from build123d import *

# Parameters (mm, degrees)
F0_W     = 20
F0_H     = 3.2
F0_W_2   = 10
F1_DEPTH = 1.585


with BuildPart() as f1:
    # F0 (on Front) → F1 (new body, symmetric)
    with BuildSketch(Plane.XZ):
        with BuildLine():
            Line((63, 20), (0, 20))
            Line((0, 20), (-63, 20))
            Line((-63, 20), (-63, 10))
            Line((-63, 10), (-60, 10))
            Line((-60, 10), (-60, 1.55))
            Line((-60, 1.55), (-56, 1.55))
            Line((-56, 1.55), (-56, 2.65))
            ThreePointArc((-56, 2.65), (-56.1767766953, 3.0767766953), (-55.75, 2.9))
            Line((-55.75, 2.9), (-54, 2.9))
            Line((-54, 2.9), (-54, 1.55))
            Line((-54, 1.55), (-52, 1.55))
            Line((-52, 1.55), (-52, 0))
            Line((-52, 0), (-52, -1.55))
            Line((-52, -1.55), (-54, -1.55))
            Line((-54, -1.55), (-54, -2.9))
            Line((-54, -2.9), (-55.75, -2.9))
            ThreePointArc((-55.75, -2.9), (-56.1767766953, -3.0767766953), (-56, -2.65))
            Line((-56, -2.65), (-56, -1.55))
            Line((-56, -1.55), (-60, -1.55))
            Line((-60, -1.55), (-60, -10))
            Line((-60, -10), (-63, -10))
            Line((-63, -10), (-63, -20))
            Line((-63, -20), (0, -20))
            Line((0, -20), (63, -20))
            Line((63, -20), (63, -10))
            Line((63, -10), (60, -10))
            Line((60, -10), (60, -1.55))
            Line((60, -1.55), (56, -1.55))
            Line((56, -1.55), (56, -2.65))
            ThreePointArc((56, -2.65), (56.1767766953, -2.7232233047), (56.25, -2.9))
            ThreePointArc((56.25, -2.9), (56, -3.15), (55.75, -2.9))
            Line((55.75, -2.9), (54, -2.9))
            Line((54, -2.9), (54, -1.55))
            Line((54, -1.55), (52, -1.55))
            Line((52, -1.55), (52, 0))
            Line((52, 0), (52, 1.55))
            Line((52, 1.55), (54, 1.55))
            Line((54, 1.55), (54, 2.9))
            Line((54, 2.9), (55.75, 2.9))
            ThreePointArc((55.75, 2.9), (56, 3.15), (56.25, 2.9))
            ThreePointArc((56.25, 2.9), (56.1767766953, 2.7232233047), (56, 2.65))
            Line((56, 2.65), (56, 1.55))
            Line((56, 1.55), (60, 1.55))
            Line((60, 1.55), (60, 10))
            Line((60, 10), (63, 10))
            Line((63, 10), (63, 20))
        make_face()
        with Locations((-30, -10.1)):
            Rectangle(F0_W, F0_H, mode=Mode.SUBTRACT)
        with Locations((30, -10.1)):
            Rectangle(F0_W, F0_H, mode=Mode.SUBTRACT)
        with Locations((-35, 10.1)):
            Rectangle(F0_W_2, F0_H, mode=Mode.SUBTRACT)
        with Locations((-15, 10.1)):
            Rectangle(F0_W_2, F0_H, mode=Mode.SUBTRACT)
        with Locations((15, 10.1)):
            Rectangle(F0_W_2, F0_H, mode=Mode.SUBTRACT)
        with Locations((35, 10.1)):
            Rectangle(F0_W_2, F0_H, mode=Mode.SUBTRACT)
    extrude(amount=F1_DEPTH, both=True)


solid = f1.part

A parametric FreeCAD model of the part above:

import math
import FreeCAD as App
import Part
import Sketcher
from FreeCAD import Vector

doc = App.newDocument("Part")
body = doc.addObject("PartDesign::Body", "Body")

# Sketch on XZ plane
sketch1 = body.newObject("Sketcher::SketchObject", "Sketch")
sketch1.AttachmentSupport = (doc.getObject("XZ_Plane"), [""])
sketch1.MapMode = "FlatFace"
sketch1.addGeometry(Part.LineSegment(Vector(63, 20, 0), Vector(-63, 20, 0)), False)
sketch1.addGeometry(Part.LineSegment(Vector(-63, 20, 0), Vector(-63, 10, 0)), False)
sketch1.addGeometry(Part.LineSegment(Vector(-63, 10, 0), Vector(-60, 10, 0)), False)
sketch1.addGeometry(Part.LineSegment(Vector(-60, 10, 0), Vector(-60, 1.55, 0)), False)
sketch1.addGeometry(Part.LineSegment(Vector(-60, 1.55, 0), Vector(-56, 1.55, 0)), False)
sketch1.addGeometry(Part.LineSegment(Vector(-56, 1.55, 0), Vector(-56, 2.65, 0)), False)
sketch1.addGeometry(Part.ArcOfCircle(Part.Circle(Vector(-56, 2.9, 0), Vector(0, 0, 1), 0.25), math.radians(0), math.radians(270)), False)
sketch1.addGeometry(Part.LineSegment(Vector(-55.75, 2.9, 0), Vector(-54, 2.9, 0)), False)
sketch1.addGeometry(Part.LineSegment(Vector(-54, 2.9, 0), Vector(-54, 1.55, 0)), False)
sketch1.addGeometry(Part.LineSegment(Vector(-54, 1.55, 0), Vector(-52, 1.55, 0)), False)
sketch1.addGeometry(Part.LineSegment(Vector(-52, 1.55, 0), Vector(-52, -1.55, 0)), False)
sketch1.addGeometry(Part.LineSegment(Vector(-52, -1.55, 0), Vector(-54, -1.55, 0)), False)
sketch1.addGeometry(Part.LineSegment(Vector(-54, -1.55, 0), Vector(-54, -2.9, 0)), False)
sketch1.addGeometry(Part.LineSegment(Vector(-54, -2.9, 0), Vector(-55.75, -2.9, 0)), False)
sketch1.addGeometry(Part.ArcOfCircle(Part.Circle(Vector(-56, -2.9, 0), Vector(0, 0, 1), 0.25), math.radians(90), math.radians(360)), False)
sketch1.addGeometry(Part.LineSegment(Vector(-56, -2.65, 0), Vector(-56, -1.55, 0)), False)
sketch1.addGeometry(Part.LineSegment(Vector(-56, -1.55, 0), Vector(-60, -1.55, 0)), False)
sketch1.addGeometry(Part.LineSegment(Vector(-60, -1.55, 0), Vector(-60, -10, 0)), False)
sketch1.addGeometry(Part.LineSegment(Vector(-60, -10, 0), Vector(-63, -10, 0)), False)
sketch1.addGeometry(Part.LineSegment(Vector(-63, -10, 0), Vector(-63, -20, 0)), False)
sketch1.addGeometry(Part.LineSegment(Vector(-63, -20, 0), Vector(63, -20, 0)), False)
sketch1.addGeometry(Part.LineSegment(Vector(63, -20, 0), Vector(63, -10, 0)), False)
sketch1.addGeometry(Part.LineSegment(Vector(63, -10, 0), Vector(60, -10, 0)), False)
sketch1.addGeometry(Part.LineSegment(Vector(60, -10, 0), Vector(60, -1.55, 0)), False)
sketch1.addGeometry(Part.LineSegment(Vector(60, -1.55, 0), Vector(56, -1.55, 0)), False)
sketch1.addGeometry(Part.LineSegment(Vector(56, -1.55, 0), Vector(56, -2.65, 0)), False)
sketch1.addGeometry(Part.ArcOfCircle(Part.Circle(Vector(56, -2.9, 0), Vector(0, 0, 1), 0.25), math.radians(0), math.radians(90)), False)
sketch1.addGeometry(Part.ArcOfCircle(Part.Circle(Vector(56, -2.9, 0), Vector(0, 0, 1), 0.25), math.radians(180), math.radians(360)), False)
sketch1.addGeometry(Part.LineSegment(Vector(55.75, -2.9, 0), Vector(54, -2.9, 0)), False)
sketch1.addGeometry(Part.LineSegment(Vector(54, -2.9, 0), Vector(54, -1.55, 0)), False)
sketch1.addGeometry(Part.LineSegment(Vector(54, -1.55, 0), Vector(52, -1.55, 0)), False)
sketch1.addGeometry(Part.LineSegment(Vector(52, -1.55, 0), Vector(52, 1.55, 0)), False)
sketch1.addGeometry(Part.LineSegment(Vector(52, 1.55, 0), Vector(54, 1.55, 0)), False)
sketch1.addGeometry(Part.LineSegment(Vector(54, 1.55, 0), Vector(54, 2.9, 0)), False)
sketch1.addGeometry(Part.LineSegment(Vector(54, 2.9, 0), Vector(55.75, 2.9, 0)), False)
sketch1.addGeometry(Part.ArcOfCircle(Part.Circle(Vector(56, 2.9, 0), Vector(0, 0, 1), 0.25), math.radians(0), math.radians(180)), False)
sketch1.addGeometry(Part.ArcOfCircle(Part.Circle(Vector(56, 2.9, 0), Vector(0, 0, 1), 0.25), math.radians(-90), math.radians(0)), False)
sketch1.addGeometry(Part.LineSegment(Vector(56, 2.65, 0), Vector(56, 1.55, 0)), False)
sketch1.addGeometry(Part.LineSegment(Vector(56, 1.55, 0), Vector(60, 1.55, 0)), False)
sketch1.addGeometry(Part.LineSegment(Vector(60, 1.55, 0), Vector(60, 10, 0)), False)
sketch1.addGeometry(Part.LineSegment(Vector(60, 10, 0), Vector(63, 10, 0)), False)
sketch1.addGeometry(Part.LineSegment(Vector(63, 10, 0), Vector(63, 20, 0)), False)
sketch1.addGeometry(Part.LineSegment(Vector(-20, -11.7, 0), Vector(-40, -11.7, 0)), False)
sketch1.addGeometry(Part.LineSegment(Vector(-40, -11.7, 0), Vector(-40, -8.5, 0)), False)
sketch1.addGeometry(Part.LineSegment(Vector(-40, -8.5, 0), Vector(-20, -8.5, 0)), False)
sketch1.addGeometry(Part.LineSegment(Vector(-20, -8.5, 0), Vector(-20, -11.7, 0)), False)
sketch1.addGeometry(Part.LineSegment(Vector(40, -11.7, 0), Vector(20, -11.7, 0)), False)
sketch1.addGeometry(Part.LineSegment(Vector(20, -11.7, 0), Vector(20, -8.5, 0)), False)
sketch1.addGeometry(Part.LineSegment(Vector(20, -8.5, 0), Vector(40, -8.5, 0)), False)
sketch1.addGeometry(Part.LineSegment(Vector(40, -8.5, 0), Vector(40, -11.7, 0)), False)
sketch1.addGeometry(Part.LineSegment(Vector(-30, 8.5, 0), Vector(-40, 8.5, 0)), False)
sketch1.addGeometry(Part.LineSegment(Vector(-40, 8.5, 0), Vector(-40, 11.7, 0)), False)
sketch1.addGeometry(Part.LineSegment(Vector(-40, 11.7, 0), Vector(-30, 11.7, 0)), False)
sketch1.addGeometry(Part.LineSegment(Vector(-30, 11.7, 0), Vector(-30, 8.5, 0)), False)
sketch1.addGeometry(Part.LineSegment(Vector(-10, 8.5, 0), Vector(-20, 8.5, 0)), False)
sketch1.addGeometry(Part.LineSegment(Vector(-20, 8.5, 0), Vector(-20, 11.7, 0)), False)
sketch1.addGeometry(Part.LineSegment(Vector(-20, 11.7, 0), Vector(-10, 11.7, 0)), False)
sketch1.addGeometry(Part.LineSegment(Vector(-10, 11.7, 0), Vector(-10, 8.5, 0)), False)
sketch1.addGeometry(Part.LineSegment(Vector(20, 8.5, 0), Vector(10, 8.5, 0)), False)
sketch1.addGeometry(Part.LineSegment(Vector(10, 8.5, 0), Vector(10, 11.7, 0)), False)
sketch1.addGeometry(Part.LineSegment(Vector(10, 11.7, 0), Vector(20, 11.7, 0)), False)
sketch1.addGeometry(Part.LineSegment(Vector(20, 11.7, 0), Vector(20, 8.5, 0)), False)
sketch1.addGeometry(Part.LineSegment(Vector(40, 8.5, 0), Vector(30, 8.5, 0)), False)
sketch1.addGeometry(Part.LineSegment(Vector(30, 8.5, 0), Vector(30, 11.7, 0)), False)
sketch1.addGeometry(Part.LineSegment(Vector(30, 11.7, 0), Vector(40, 11.7, 0)), False)
sketch1.addGeometry(Part.LineSegment(Vector(40, 11.7, 0), Vector(40, 8.5, 0)), False)
sketch1.addConstraint(Sketcher.Constraint("Coincident", 0, 2, 1, 1))
sketch1.addConstraint(Sketcher.Constraint("Coincident", 1, 2, 2, 1))
sketch1.addConstraint(Sketcher.Constraint("Coincident", 2, 2, 3, 1))
sketch1.addConstraint(Sketcher.Constraint("Coincident", 3, 2, 4, 1))
sketch1.addConstraint(Sketcher.Constraint("Coincident", 4, 2, 5, 1))
sketch1.addConstraint(Sketcher.Constraint("Coincident", 5, 2, 6, 2))
sketch1.addConstraint(Sketcher.Constraint("Coincident", 6, 1, 7, 1))
sketch1.addConstraint(Sketcher.Constraint("Coincident", 7, 2, 8, 1))
sketch1.addConstraint(Sketcher.Constraint("Coincident", 8, 2, 9, 1))
sketch1.addConstraint(Sketcher.Constraint("Coincident", 9, 2, 10, 1))
sketch1.addConstraint(Sketcher.Constraint("Coincident", 10, 2, 11, 1))
sketch1.addConstraint(Sketcher.Constraint("Coincident", 11, 2, 12, 1))
sketch1.addConstraint(Sketcher.Constraint("Coincident", 12, 2, 13, 1))
sketch1.addConstraint(Sketcher.Constraint("Coincident", 13, 2, 14, 2))
sketch1.addConstraint(Sketcher.Constraint("Coincident", 14, 1, 15, 1))
sketch1.addConstraint(Sketcher.Constraint("Coincident", 15, 2, 16, 1))
sketch1.addConstraint(Sketcher.Constraint("Coincident", 16, 2, 17, 1))
sketch1.addConstraint(Sketcher.Constraint("Coincident", 17, 2, 18, 1))
sketch1.addConstraint(Sketcher.Constraint("Coincident", 18, 2, 19, 1))
sketch1.addConstraint(Sketcher.Constraint("Coincident", 19, 2, 20, 1))
sketch1.addConstraint(Sketcher.Constraint("Coincident", 20, 2, 21, 1))
sketch1.addConstraint(Sketcher.Constraint("Coincident", 21, 2, 22, 1))
sketch1.addConstraint(Sketcher.Constraint("Coincident", 22, 2, 23, 1))
sketch1.addConstraint(Sketcher.Constraint("Coincident", 23, 2, 24, 1))
sketch1.addConstraint(Sketcher.Constraint("Coincident", 24, 2, 25, 1))
sketch1.addConstraint(Sketcher.Constraint("Coincident", 25, 2, 26, 2))
sketch1.addConstraint(Sketcher.Constraint("Tangent", 26, 1, 27, 2))
sketch1.addConstraint(Sketcher.Constraint("Coincident", 27, 1, 28, 1))
sketch1.addConstraint(Sketcher.Constraint("Coincident", 28, 2, 29, 1))
sketch1.addConstraint(Sketcher.Constraint("Coincident", 29, 2, 30, 1))
sketch1.addConstraint(Sketcher.Constraint("Coincident", 30, 2, 31, 1))
sketch1.addConstraint(Sketcher.Constraint("Coincident", 31, 2, 32, 1))
sketch1.addConstraint(Sketcher.Constraint("Coincident", 32, 2, 33, 1))
sketch1.addConstraint(Sketcher.Constraint("Coincident", 33, 2, 34, 1))
sketch1.addConstraint(Sketcher.Constraint("Coincident", 34, 2, 35, 2))
sketch1.addConstraint(Sketcher.Constraint("Tangent", 35, 1, 36, 2))
sketch1.addConstraint(Sketcher.Constraint("Coincident", 36, 1, 37, 1))
sketch1.addConstraint(Sketcher.Constraint("Coincident", 37, 2, 38, 1))
sketch1.addConstraint(Sketcher.Constraint("Coincident", 38, 2, 39, 1))
sketch1.addConstraint(Sketcher.Constraint("Coincident", 39, 2, 40, 1))
sketch1.addConstraint(Sketcher.Constraint("Coincident", 40, 2, 41, 1))
sketch1.addConstraint(Sketcher.Constraint("Coincident", 41, 2, 0, 1))
sketch1.addConstraint(Sketcher.Constraint("Coincident", 42, 2, 43, 1))
sketch1.addConstraint(Sketcher.Constraint("Coincident", 43, 2, 44, 1))
sketch1.addConstraint(Sketcher.Constraint("Coincident", 44, 2, 45, 1))
sketch1.addConstraint(Sketcher.Constraint("Coincident", 45, 2, 42, 1))
sketch1.addConstraint(Sketcher.Constraint("Coincident", 46, 2, 47, 1))
sketch1.addConstraint(Sketcher.Constraint("Coincident", 47, 2, 48, 1))
sketch1.addConstraint(Sketcher.Constraint("Coincident", 48, 2, 49, 1))
sketch1.addConstraint(Sketcher.Constraint("Coincident", 49, 2, 46, 1))
sketch1.addConstraint(Sketcher.Constraint("Coincident", 50, 2, 51, 1))
sketch1.addConstraint(Sketcher.Constraint("Coincident", 51, 2, 52, 1))
sketch1.addConstraint(Sketcher.Constraint("Coincident", 52, 2, 53, 1))
sketch1.addConstraint(Sketcher.Constraint("Coincident", 53, 2, 50, 1))
sketch1.addConstraint(Sketcher.Constraint("Coincident", 54, 2, 55, 1))
sketch1.addConstraint(Sketcher.Constraint("Coincident", 55, 2, 56, 1))
sketch1.addConstraint(Sketcher.Constraint("Coincident", 56, 2, 57, 1))
sketch1.addConstraint(Sketcher.Constraint("Coincident", 57, 2, 54, 1))
sketch1.addConstraint(Sketcher.Constraint("Coincident", 58, 2, 59, 1))
sketch1.addConstraint(Sketcher.Constraint("Coincident", 59, 2, 60, 1))
sketch1.addConstraint(Sketcher.Constraint("Coincident", 60, 2, 61, 1))
sketch1.addConstraint(Sketcher.Constraint("Coincident", 61, 2, 58, 1))
sketch1.addConstraint(Sketcher.Constraint("Coincident", 62, 2, 63, 1))
sketch1.addConstraint(Sketcher.Constraint("Coincident", 63, 2, 64, 1))
sketch1.addConstraint(Sketcher.Constraint("Coincident", 64, 2, 65, 1))
sketch1.addConstraint(Sketcher.Constraint("Coincident", 65, 2, 62, 1))
sketch1.addConstraint(Sketcher.Constraint("Horizontal", 0))
sketch1.addConstraint(Sketcher.Constraint("Vertical", 1))
sketch1.addConstraint(Sketcher.Constraint("Horizontal", 2))
sketch1.addConstraint(Sketcher.Constraint("Vertical", 3))
sketch1.addConstraint(Sketcher.Constraint("Horizontal", 4))
sketch1.addConstraint(Sketcher.Constraint("Vertical", 5))
sketch1.addConstraint(Sketcher.Constraint("Horizontal", 7))
sketch1.addConstraint(Sketcher.Constraint("Vertical", 8))
sketch1.addConstraint(Sketcher.Constraint("Horizontal", 9))
sketch1.addConstraint(Sketcher.Constraint("Vertical", 10))
sketch1.addConstraint(Sketcher.Constraint("Horizontal", 11))
sketch1.addConstraint(Sketcher.Constraint("Vertical", 12))
sketch1.addConstraint(Sketcher.Constraint("Horizontal", 13))
sketch1.addConstraint(Sketcher.Constraint("Vertical", 15))
sketch1.addConstraint(Sketcher.Constraint("Horizontal", 16))
sketch1.addConstraint(Sketcher.Constraint("Vertical", 17))
sketch1.addConstraint(Sketcher.Constraint("Horizontal", 18))
sketch1.addConstraint(Sketcher.Constraint("Vertical", 19))
sketch1.addConstraint(Sketcher.Constraint("Horizontal", 20))
sketch1.addConstraint(Sketcher.Constraint("Vertical", 21))
sketch1.addConstraint(Sketcher.Constraint("Horizontal", 22))
sketch1.addConstraint(Sketcher.Constraint("Vertical", 23))
sketch1.addConstraint(Sketcher.Constraint("Horizontal", 24))
sketch1.addConstraint(Sketcher.Constraint("Vertical", 25))
sketch1.addConstraint(Sketcher.Constraint("Horizontal", 28))
sketch1.addConstraint(Sketcher.Constraint("Vertical", 29))
sketch1.addConstraint(Sketcher.Constraint("Horizontal", 30))
sketch1.addConstraint(Sketcher.Constraint("Vertical", 31))
sketch1.addConstraint(Sketcher.Constraint("Horizontal", 32))
sketch1.addConstraint(Sketcher.Constraint("Vertical", 33))
sketch1.addConstraint(Sketcher.Constraint("Horizontal", 34))
sketch1.addConstraint(Sketcher.Constraint("Vertical", 37))
sketch1.addConstraint(Sketcher.Constraint("Horizontal", 38))
sketch1.addConstraint(Sketcher.Constraint("Vertical", 39))
sketch1.addConstraint(Sketcher.Constraint("Horizontal", 40))
sketch1.addConstraint(Sketcher.Constraint("Vertical", 41))
sketch1.addConstraint(Sketcher.Constraint("Horizontal", 42))
sketch1.addConstraint(Sketcher.Constraint("Vertical", 43))
sketch1.addConstraint(Sketcher.Constraint("Horizontal", 44))
sketch1.addConstraint(Sketcher.Constraint("Vertical", 45))
sketch1.addConstraint(Sketcher.Constraint("Horizontal", 46))
sketch1.addConstraint(Sketcher.Constraint("Vertical", 47))
sketch1.addConstraint(Sketcher.Constraint("Horizontal", 48))
sketch1.addConstraint(Sketcher.Constraint("Vertical", 49))
sketch1.addConstraint(Sketcher.Constraint("Horizontal", 50))
sketch1.addConstraint(Sketcher.Constraint("Vertical", 51))
sketch1.addConstraint(Sketcher.Constraint("Horizontal", 52))
sketch1.addConstraint(Sketcher.Constraint("Vertical", 53))
sketch1.addConstraint(Sketcher.Constraint("Horizontal", 54))
sketch1.addConstraint(Sketcher.Constraint("Vertical", 55))
sketch1.addConstraint(Sketcher.Constraint("Horizontal", 56))
sketch1.addConstraint(Sketcher.Constraint("Vertical", 57))
sketch1.addConstraint(Sketcher.Constraint("Horizontal", 58))
sketch1.addConstraint(Sketcher.Constraint("Vertical", 59))
sketch1.addConstraint(Sketcher.Constraint("Horizontal", 60))
sketch1.addConstraint(Sketcher.Constraint("Vertical", 61))
sketch1.addConstraint(Sketcher.Constraint("Horizontal", 62))
sketch1.addConstraint(Sketcher.Constraint("Vertical", 63))
sketch1.addConstraint(Sketcher.Constraint("Horizontal", 64))
sketch1.addConstraint(Sketcher.Constraint("Vertical", 65))
sketch1.addConstraint(Sketcher.Constraint("Equal", 6, 14))
sketch1.addConstraint(Sketcher.Constraint("Equal", 14, 26))
sketch1.addConstraint(Sketcher.Constraint("Equal", 26, 27))
sketch1.addConstraint(Sketcher.Constraint("Equal", 27, 35))
sketch1.addConstraint(Sketcher.Constraint("Equal", 35, 36))
sketch1.addConstraint(Sketcher.Constraint("Symmetric", 6, 3, 26, 3, -1, 1))
sketch1.addConstraint(Sketcher.Constraint("Symmetric", 14, 3, 35, 3, -1, 1))
sketch1.addConstraint(Sketcher.Constraint("Symmetric", 0, 2, 20, 2, -1, 1))
sketch1.addConstraint(Sketcher.Constraint("Symmetric", 2, 2, 22, 2, -1, 1))
sketch1.addConstraint(Sketcher.Constraint("Symmetric", 4, 2, 24, 2, -1, 1))
sketch1.addConstraint(Sketcher.Constraint("Symmetric", 7, 2, 28, 2, -1, 1))
sketch1.addConstraint(Sketcher.Constraint("Symmetric", 9, 2, 30, 2, -1, 1))
sketch1.addConstraint(Sketcher.Constraint("Symmetric", 11, 2, 32, 2, -1, 1))
sketch1.addConstraint(Sketcher.Constraint("Symmetric", 15, 2, 37, 2, -1, 1))
sketch1.addConstraint(Sketcher.Constraint("Symmetric", 17, 2, 39, 2, -1, 1))
sketch1.addConstraint(Sketcher.Constraint("Symmetric", 48, 2, 50, 2, -1, 1))
sketch1.addConstraint(Sketcher.Constraint("Symmetric", 47, 2, 54, 2, -1, 1))
sketch1.addConstraint(Sketcher.Constraint("Symmetric", 45, 2, 60, 2, -1, 1))
sketch1.addConstraint(Sketcher.Constraint("Symmetric", 42, 2, 64, 2, -1, 1))
sketch1.addConstraint(Sketcher.Constraint("Symmetric", 14, 3, 26, 3, -2))
sketch1.addConstraint(Sketcher.Constraint("Symmetric", 18, 2, 21, 2, -2))
sketch1.addConstraint(Sketcher.Constraint("Symmetric", 16, 2, 23, 2, -2))
sketch1.addConstraint(Sketcher.Constraint("Symmetric", 12, 2, 28, 2, -2))
sketch1.addConstraint(Sketcher.Constraint("Symmetric", 45, 2, 46, 2, -2))
sketch1.addConstraint(Sketcher.Constraint("Symmetric", 43, 2, 48, 2, -2))
sketch1.addConstraint(Sketcher.Constraint("Symmetric", 57, 2, 58, 2, -2))
sketch1.addConstraint(Sketcher.Constraint("Symmetric", 53, 2, 62, 2, -2))
sketch1.addConstraint(Sketcher.Constraint("Horizontal", 36, 3, 6, 1))
sketch1.addConstraint(Sketcher.Constraint("Horizontal", 4, 2, 8, 2))
sketch1.addConstraint(Sketcher.Constraint("Horizontal", 11, 2, 15, 2))
sketch1.addConstraint(Sketcher.Constraint("Horizontal", 13, 2, 26, 1))
sketch1.addConstraint(Sketcher.Constraint("Horizontal", 7, 2, 33, 2))
sketch1.addConstraint(Sketcher.Constraint("Horizontal", 34, 2, 35, 1))
sketch1.addConstraint(Sketcher.Constraint("Horizontal", 52, 2, 55, 2))
sketch1.addConstraint(Sketcher.Constraint("Horizontal", 56, 2, 59, 2))
sketch1.addConstraint(Sketcher.Constraint("Vertical", 14, 3, 4, 2))
sketch1.addConstraint(Sketcher.Constraint("Vertical", 5, 2, 14, 1))
sketch1.addConstraint(Sketcher.Constraint("Vertical", 21, 2, 40, 2))
sketch1.addConstraint(Sketcher.Constraint("Equal", 52, 54))
sketch1.addConstraint(Sketcher.Constraint("Equal", 64, 1))
sketch1.addConstraint(Sketcher.Constraint("DistanceX", 0, 2, 0, 1, 126.0))
sketch1.addConstraint(Sketcher.Constraint("DistanceX", 2, 1, 2, 2, 3.0))
sketch1.addConstraint(Sketcher.Constraint("DistanceX", 4, 1, 4, 2, 4.0))
sketch1.addConstraint(Sketcher.Constraint("DistanceX", 9, 1, 9, 2, 2.0))
sketch1.addConstraint(Sketcher.Constraint("DistanceX", 42, 2, 42, 1, 20.0))
sketch1.addConstraint(Sketcher.Constraint("DistanceX", 50, 2, 50, 1, 10.0))
sketch1.addConstraint(Sketcher.Constraint("Radius", 6, 0.25))
sketch1.addConstraint(Sketcher.Constraint("DistanceY", 5, 1, 5, 2, 1.1))
sketch1.addConstraint(Sketcher.Constraint("DistanceY", 10, 2, 10, 1, 3.1))
sketch1.addConstraint(Sketcher.Constraint("DistanceY", 43, 1, 43, 2, 3.2))
sketch1.addConstraint(Sketcher.Constraint("DistanceY", -1, 1, 0, 2, 20.0))
sketch1.addConstraint(Sketcher.Constraint("DistanceX", 7, 2, -1, 1, 54.0))
sketch1.addConstraint(Sketcher.Constraint("DistanceX", 42, 2, -1, 1, 40.0))
sketch1.addConstraint(Sketcher.Constraint("DistanceY", 42, 2, -1, 1, 11.7))
pad1 = body.newObject("PartDesign::Pad", "Pad")
pad1.Profile = sketch1
pad1.Length = 3.17
pad1.Midplane = True

doc.recompute()
